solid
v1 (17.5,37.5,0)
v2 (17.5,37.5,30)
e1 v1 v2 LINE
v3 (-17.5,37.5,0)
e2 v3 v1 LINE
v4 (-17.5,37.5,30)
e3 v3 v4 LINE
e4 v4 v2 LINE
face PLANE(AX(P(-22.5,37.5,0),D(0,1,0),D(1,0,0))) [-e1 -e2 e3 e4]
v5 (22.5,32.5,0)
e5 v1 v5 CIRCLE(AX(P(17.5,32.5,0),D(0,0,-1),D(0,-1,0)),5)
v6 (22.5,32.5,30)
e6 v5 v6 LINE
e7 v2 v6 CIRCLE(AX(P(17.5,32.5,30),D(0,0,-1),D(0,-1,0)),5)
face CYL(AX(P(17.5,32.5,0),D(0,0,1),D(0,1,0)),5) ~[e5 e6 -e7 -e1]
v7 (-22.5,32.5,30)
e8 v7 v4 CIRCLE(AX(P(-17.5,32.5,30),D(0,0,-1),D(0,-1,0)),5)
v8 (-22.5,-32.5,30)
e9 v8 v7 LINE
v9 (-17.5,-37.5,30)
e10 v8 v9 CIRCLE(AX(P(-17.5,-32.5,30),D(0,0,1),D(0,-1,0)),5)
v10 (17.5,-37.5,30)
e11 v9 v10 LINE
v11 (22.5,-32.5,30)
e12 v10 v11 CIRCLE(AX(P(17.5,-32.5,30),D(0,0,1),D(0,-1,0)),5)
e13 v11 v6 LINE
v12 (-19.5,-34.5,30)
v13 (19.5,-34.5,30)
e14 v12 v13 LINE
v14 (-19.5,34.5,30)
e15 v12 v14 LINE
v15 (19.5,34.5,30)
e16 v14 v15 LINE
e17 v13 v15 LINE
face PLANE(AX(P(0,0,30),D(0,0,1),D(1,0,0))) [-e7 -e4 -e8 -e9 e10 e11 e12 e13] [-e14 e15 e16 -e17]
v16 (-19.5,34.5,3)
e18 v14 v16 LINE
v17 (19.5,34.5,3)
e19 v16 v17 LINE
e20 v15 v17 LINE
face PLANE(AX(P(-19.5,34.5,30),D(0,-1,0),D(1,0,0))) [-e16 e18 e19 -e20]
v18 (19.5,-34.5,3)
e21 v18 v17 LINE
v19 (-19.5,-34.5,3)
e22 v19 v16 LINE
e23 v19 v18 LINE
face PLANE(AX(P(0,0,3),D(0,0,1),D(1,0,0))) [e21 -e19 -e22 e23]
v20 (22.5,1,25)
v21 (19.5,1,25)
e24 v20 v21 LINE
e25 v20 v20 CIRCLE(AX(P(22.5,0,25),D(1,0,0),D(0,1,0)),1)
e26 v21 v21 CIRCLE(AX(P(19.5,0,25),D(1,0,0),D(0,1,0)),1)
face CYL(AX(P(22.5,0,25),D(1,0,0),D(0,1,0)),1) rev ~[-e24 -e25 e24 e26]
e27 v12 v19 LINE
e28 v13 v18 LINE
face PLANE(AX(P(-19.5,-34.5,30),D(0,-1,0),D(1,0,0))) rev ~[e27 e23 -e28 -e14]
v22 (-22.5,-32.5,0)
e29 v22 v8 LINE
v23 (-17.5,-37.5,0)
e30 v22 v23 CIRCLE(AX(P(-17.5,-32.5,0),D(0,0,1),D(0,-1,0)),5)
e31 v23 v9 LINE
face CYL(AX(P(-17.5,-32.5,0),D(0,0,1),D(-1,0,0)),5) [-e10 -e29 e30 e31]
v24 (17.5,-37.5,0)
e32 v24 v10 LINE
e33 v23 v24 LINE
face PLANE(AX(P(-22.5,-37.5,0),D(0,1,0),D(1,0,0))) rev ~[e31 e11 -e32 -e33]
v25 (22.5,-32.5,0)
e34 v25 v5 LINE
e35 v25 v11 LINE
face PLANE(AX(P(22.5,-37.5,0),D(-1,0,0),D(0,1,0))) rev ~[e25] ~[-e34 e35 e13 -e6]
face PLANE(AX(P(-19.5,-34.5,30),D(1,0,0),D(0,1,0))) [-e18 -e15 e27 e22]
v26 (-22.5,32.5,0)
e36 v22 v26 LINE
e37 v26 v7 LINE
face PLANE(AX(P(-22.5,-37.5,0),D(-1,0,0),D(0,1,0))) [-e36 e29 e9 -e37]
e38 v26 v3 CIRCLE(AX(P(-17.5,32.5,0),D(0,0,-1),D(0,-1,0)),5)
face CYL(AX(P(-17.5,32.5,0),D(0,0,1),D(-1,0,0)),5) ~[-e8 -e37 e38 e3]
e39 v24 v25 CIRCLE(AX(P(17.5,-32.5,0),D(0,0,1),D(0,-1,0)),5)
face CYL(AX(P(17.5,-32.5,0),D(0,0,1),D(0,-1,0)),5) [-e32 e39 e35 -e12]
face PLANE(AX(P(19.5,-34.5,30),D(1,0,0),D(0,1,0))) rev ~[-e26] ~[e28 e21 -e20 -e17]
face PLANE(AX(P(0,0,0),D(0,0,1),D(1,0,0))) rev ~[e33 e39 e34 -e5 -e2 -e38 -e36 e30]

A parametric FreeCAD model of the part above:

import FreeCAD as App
import Part
import Sketcher
from FreeCAD import Vector


def edges_at(feature, points):
    """Names of the edges that pass closest to the given points."""
    edges = feature.Shape.Edges
    near = lambda p: min(range(len(edges)), key=lambda i: edges[i].distToShape(Part.Vertex(*p))[0])
    return sorted({f"Edge{near(p) + 1}" for p in points})

doc = App.newDocument("Part")
body = doc.addObject("PartDesign::Body", "Body")

# Sketch on XY plane
sketch1 = body.newObject("Sketcher::SketchObject", "Sketch")
sketch1.AttachmentSupport = (doc.getObject("XY_Plane"), [""])
sketch1.MapMode = "FlatFace"
sketch1.addGeometry([
    Part.LineSegment(Vector(-22, 38, 0), Vector(-22, -38, 0)),
    Part.LineSegment(Vector(-22, -38, 0), Vector(22, -38, 0)),
    Part.LineSegment(Vector(22, -38, 0), Vector(22, 38, 0)),
    Part.LineSegment(Vector(22, 38, 0), Vector(-22, 38, 0)),
], False)
sketch1.addConstraint([
    Sketcher.Constraint("Coincident", 0, 2, 1, 1),
    Sketcher.Constraint("Coincident", 1, 2, 2, 1),
    Sketcher.Constraint("Coincident", 2, 2, 3, 1),
    Sketcher.Constraint("Coincident", 3, 2, 0, 1),
    Sketcher.Constraint("Vertical", 0),
    Sketcher.Constraint("Horizontal", 1),
    Sketcher.Constraint("Vertical", 2),
    Sketcher.Constraint("Horizontal", 3),
    Sketcher.Constraint("Symmetric", 0, 2, 2, 2, -1, 1),
    Sketcher.Constraint("DistanceX", 1, 1, 1, 2, 45.0),
    Sketcher.Constraint("DistanceY", 0, 2, 0, 1, 75.0),
])
pad1 = body.newObject("PartDesign::Pad", "Pad")
pad1.Profile = sketch1
pad1.Length = 30

# Sketch on XY plane
sketch2 = body.newObject("Sketcher::SketchObject", "Sketch001")
sketch2.AttachmentSupport = (doc.getObject("XY_Plane"), [""])
sketch2.MapMode = "FlatFace"
sketch2.AttachmentOffset = App.Placement(Vector(0, 0, 30), App.Rotation())
sketch2.addGeometry([
    Part.LineSegment(Vector(-20, 34, 0), Vector(-20, -34, 0)),
    Part.LineSegment(Vector(-20, -34, 0), Vector(20, -34, 0)),
    Part.LineSegment(Vector(20, -34, 0), Vector(20, 34, 0)),
    Part.LineSegment(Vector(20, 34, 0), Vector(-20, 34, 0)),
], False)
sketch2.addConstraint([
    Sketcher.Constraint("Coincident", 0, 2, 1, 1),
    Sketcher.Constraint("Coincident", 1, 2, 2, 1),
    Sketcher.Constraint("Coincident", 2, 2, 3, 1),
    Sketcher.Constraint("Coincident", 3, 2, 0, 1),
    Sketcher.Constraint("Vertical", 0),
    Sketcher.Constraint("Horizontal", 1),
    Sketcher.Constraint("Vertical", 2),
    Sketcher.Constraint("Horizontal", 3),
    Sketcher.Constraint("Symmetric", 0, 2, 2, 2, -1, 1),
    Sketcher.Constraint("DistanceX", 1, 1, 1, 2, 39.0),
    Sketcher.Constraint("DistanceY", 0, 2, 0, 1, 69.0),
])
pocket1 = body.newObject("PartDesign::Pocket", "Pocket")
pocket1.Profile = sketch2
pocket1.Length = 27
doc.recompute()

fillet = body.newObject("PartDesign::Fillet", "Fillet")
fillet.Base = (pocket1, edges_at(pocket1, [
    (22.5, -37.5, 15),
    (-22.5, -37.5, 15),
    (22.5, 37.5, 15),
    (-22.5, 37.5, 15),
]))
fillet.Radius = 5

# Sketch on YZ plane
sketch3 = body.newObject("Sketcher::SketchObject", "Sketch002")
sketch3.AttachmentSupport = (doc.getObject("YZ_Plane"), [""])
sketch3.MapMode = "FlatFace"
sketch3.AttachmentOffset = App.Placement(Vector(0, 0, 22.5), App.Rotation())
sketch3.addGeometry(Part.Circle(Vector(0, 25, 0), Vector(0, 0, 1), 1), False)
sketch3.addConstraint([
    Sketcher.Constraint("PointOnObject", 0, 3, -2),
    Sketcher.Constraint("Diameter", 0, 2.0),
    Sketcher.Constraint("DistanceY", -1, 1, 0, 3, 25.0),
])
pocket2 = body.newObject("PartDesign::Pocket", "Pocket001")
pocket2.Profile = sketch3
pocket2.Length = 3

doc.recompute()
